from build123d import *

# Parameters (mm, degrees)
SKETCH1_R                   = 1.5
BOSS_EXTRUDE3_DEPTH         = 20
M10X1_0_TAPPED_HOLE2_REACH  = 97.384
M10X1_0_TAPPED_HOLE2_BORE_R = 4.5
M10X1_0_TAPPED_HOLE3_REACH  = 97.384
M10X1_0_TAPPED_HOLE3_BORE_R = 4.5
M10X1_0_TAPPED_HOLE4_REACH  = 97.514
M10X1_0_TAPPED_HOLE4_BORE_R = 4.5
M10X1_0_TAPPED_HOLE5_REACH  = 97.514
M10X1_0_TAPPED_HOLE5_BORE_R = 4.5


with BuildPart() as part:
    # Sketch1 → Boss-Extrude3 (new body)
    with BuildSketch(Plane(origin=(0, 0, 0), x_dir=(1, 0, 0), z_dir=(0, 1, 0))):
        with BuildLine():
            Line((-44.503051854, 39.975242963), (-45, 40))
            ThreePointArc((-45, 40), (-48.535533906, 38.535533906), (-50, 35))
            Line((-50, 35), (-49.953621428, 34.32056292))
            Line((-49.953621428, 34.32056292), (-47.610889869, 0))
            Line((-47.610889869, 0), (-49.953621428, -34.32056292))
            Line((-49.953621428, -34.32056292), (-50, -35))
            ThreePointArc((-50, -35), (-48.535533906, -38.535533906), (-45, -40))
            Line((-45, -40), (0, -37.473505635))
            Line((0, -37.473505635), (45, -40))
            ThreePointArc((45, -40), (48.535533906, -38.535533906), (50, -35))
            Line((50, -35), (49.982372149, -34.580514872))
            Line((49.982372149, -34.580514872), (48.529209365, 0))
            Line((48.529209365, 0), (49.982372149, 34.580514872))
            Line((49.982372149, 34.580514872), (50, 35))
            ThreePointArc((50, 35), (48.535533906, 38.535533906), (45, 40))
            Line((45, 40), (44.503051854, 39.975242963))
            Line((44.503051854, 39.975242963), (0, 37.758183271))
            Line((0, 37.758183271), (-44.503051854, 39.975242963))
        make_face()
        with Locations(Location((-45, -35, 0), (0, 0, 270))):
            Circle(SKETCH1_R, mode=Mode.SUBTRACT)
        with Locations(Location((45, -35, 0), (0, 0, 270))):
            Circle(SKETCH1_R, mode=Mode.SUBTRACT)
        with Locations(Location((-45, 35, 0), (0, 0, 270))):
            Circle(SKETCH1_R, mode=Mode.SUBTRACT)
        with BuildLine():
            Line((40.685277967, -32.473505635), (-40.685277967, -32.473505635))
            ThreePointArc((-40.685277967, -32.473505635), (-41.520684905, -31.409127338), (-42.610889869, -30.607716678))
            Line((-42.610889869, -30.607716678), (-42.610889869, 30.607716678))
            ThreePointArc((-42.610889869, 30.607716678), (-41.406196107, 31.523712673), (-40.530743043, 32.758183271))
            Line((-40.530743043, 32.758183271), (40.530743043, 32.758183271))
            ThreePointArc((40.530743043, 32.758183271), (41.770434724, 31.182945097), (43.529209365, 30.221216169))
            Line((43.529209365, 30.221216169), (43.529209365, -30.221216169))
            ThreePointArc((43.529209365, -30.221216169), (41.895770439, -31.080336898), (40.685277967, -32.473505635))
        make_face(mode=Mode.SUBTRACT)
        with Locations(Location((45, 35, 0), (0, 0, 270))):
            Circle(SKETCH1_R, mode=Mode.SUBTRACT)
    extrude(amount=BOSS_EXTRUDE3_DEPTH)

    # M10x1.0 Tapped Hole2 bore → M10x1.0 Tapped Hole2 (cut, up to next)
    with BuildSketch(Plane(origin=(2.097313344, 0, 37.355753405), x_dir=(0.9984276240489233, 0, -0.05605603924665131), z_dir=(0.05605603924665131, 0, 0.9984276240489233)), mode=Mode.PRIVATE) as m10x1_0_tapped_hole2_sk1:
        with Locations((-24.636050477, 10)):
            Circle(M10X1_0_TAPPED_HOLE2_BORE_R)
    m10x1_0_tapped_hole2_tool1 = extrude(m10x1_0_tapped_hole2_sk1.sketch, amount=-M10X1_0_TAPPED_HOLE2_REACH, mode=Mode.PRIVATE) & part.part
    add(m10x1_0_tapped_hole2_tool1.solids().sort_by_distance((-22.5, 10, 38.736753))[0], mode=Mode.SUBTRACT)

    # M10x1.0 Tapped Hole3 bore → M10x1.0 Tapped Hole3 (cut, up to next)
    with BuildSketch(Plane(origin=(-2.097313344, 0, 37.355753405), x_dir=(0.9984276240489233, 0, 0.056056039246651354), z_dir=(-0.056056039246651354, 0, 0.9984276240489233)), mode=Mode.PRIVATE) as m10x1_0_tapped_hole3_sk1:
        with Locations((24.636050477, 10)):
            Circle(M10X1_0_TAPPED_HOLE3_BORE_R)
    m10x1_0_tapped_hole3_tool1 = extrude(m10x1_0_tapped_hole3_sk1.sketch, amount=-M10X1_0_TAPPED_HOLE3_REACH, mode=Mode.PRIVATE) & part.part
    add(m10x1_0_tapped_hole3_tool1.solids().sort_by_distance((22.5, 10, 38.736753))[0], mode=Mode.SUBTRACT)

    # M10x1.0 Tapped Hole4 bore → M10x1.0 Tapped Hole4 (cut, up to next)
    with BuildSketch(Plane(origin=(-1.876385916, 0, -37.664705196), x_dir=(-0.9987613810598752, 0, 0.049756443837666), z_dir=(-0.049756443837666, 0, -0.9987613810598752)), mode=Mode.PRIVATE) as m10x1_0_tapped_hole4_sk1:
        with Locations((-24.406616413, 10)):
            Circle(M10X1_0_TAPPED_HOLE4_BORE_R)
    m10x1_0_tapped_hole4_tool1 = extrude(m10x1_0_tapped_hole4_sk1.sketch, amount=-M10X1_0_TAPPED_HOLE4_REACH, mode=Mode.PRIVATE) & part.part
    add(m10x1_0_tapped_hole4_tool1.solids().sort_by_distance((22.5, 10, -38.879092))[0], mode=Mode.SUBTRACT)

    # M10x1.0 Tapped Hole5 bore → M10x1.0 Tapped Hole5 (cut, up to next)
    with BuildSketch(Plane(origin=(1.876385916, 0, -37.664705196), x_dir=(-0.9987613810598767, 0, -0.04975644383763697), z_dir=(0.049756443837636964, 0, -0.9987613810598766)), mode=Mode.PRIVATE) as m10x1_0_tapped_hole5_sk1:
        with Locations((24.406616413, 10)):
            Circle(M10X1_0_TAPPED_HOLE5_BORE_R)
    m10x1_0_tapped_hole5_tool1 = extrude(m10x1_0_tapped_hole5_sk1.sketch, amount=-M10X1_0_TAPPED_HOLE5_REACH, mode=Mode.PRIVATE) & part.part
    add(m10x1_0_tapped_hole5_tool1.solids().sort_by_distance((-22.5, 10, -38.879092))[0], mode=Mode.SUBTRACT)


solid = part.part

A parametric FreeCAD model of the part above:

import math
import FreeCAD as App
import Part
import Sketcher
from FreeCAD import Vector
Q = App.Units.Quantity

doc = App.newDocument("Part")
params = doc.addObject("Spreadsheet::Sheet", "Params")
for row, (alias, value) in enumerate([
    ("sketch1_diameter", "3 mm"),
    ("sketch1_diameter2", "3 mm"),
    ("sketch1_diameter3", "3 mm"),
    ("sketch1_diameter4", "3 mm"),
    ("sketch1_radius", "5 mm"),
    ("pad1_length", "20 mm"),
    ("sketch2_diameter", "9 mm"),
    ("sketch3_diameter", "9 mm"),
    ("sketch4_diameter", "9 mm"),
    ("sketch5_diameter", "9 mm"),
], start=1):
    params.set(f"A{row}", alias)
    params.set(f"B{row}", "=" + value)
    params.setAlias(f"B{row}", alias)

body = doc.addObject("PartDesign::Body", "Body")

sketch1 = body.newObject("Sketcher::SketchObject", "Sketch")
sketch1.AttachmentSupport = (doc.getObject("XZ_Plane"), [""])
sketch1.MapMode = "FlatFace"
sketch1.addGeometry(Part.LineSegment(Vector(-44.503052, -39.975243, 0), Vector(-45, -40, 0)), False)
sketch1.addGeometry(Part.ArcOfCircle(Part.Circle(Vector(-45, -35, 0), Vector(0, 0, 1), 5), math.radians(180), math.radians(270)), False)
sketch1.addGeometry(Part.LineSegment(Vector(-50, -35, 0), Vector(-49.953621, -34.320563, 0)), False)
sketch1.addGeometry(Part.LineSegment(Vector(-49.953621, -34.320563, 0), Vector(-47.61089, 0, 0)), False)
sketch1.addGeometry(Part.LineSegment(Vector(-47.61089, 0, 0), Vector(-49.953621, 34.320563, 0)), False)
sketch1.addGeometry(Part.LineSegment(Vector(-49.953621, 34.320563, 0), Vector(-50, 35, 0)), False)
sketch1.addGeometry(Part.ArcOfCircle(Part.Circle(Vector(-45, 35, 0), Vector(0, 0, 1), 5), math.radians(90), math.radians(180)), False)
sketch1.addGeometry(Part.LineSegment(Vector(-45, 40, 0), Vector(0, 37.473506, 0)), False)
sketch1.addGeometry(Part.LineSegment(Vector(0, 37.473506, 0), Vector(45, 40, 0)), False)
sketch1.addGeometry(Part.ArcOfCircle(Part.Circle(Vector(45, 35, 0), Vector(0, 0, 1), 5), math.radians(0), math.radians(90)), False)
sketch1.addGeometry(Part.LineSegment(Vector(50, 35, 0), Vector(49.982372, 34.580515, 0)), False)
sketch1.addGeometry(Part.LineSegment(Vector(49.982372, 34.580515, 0), Vector(48.529209, 0, 0)), False)
sketch1.addGeometry(Part.LineSegment(Vector(48.529209, 0, 0), Vector(49.982372, -34.580515, 0)), False)
sketch1.addGeometry(Part.LineSegment(Vector(49.982372, -34.580515, 0), Vector(50, -35, 0)), False)
sketch1.addGeometry(Part.ArcOfCircle(Part.Circle(Vector(45, -35, 0), Vector(0, 0, 1), 5), math.radians(-90), math.radians(0)), False)
sketch1.addGeometry(Part.LineSegment(Vector(45, -40, 0), Vector(44.503052, -39.975243, 0)), False)
sketch1.addGeometry(Part.LineSegment(Vector(44.503052, -39.975243, 0), Vector(0, -37.758183, 0)), False)
sketch1.addGeometry(Part.LineSegment(Vector(0, -37.758183, 0), Vector(-44.503052, -39.975243, 0)), False)
sketch1.addGeometry(Part.Circle(Vector(-45, 35, 0), Vector(0, 0, 1), 1.5), False)
sketch1.addGeometry(Part.Circle(Vector(45, 35, 0), Vector(0, 0, 1), 1.5), False)
sketch1.addGeometry(Part.Circle(Vector(-45, -35, 0), Vector(0, 0, 1), 1.5), False)
sketch1.addGeometry(Part.ArcOfCircle(Part.Circle(Vector(45, 35, 0), Vector(0, 0, 1), 5), math.radians(-149.648806), math.radians(-107.107062)), False)
sketch1.addGeometry(Part.LineSegment(Vector(40.685278, 32.473506, 0), Vector(-40.685278, 32.473506, 0)), False)
sketch1.addGeometry(Part.ArcOfCircle(Part.Circle(Vector(-45, 35, 0), Vector(0, 0, 1), 5), math.radians(-61.456749), math.radians(-30.351194)), False)
sketch1.addGeometry(Part.LineSegment(Vector(-42.61089, 30.607717, 0), Vector(-42.61089, -30.607717, 0)), False)
sketch1.addGeometry(Part.ArcOfCircle(Part.Circle(Vector(-45, -35, 0), Vector(0, 0, 1), 5), math.radians(26.638726), math.radians(61.456749)), False)
sketch1.addGeometry(Part.LineSegment(Vector(-40.530743, -32.758183, 0), Vector(40.530743, -32.758183, 0)), False)
sketch1.addGeometry(Part.ArcOfCircle(Part.Circle(Vector(45, -35, 0), Vector(0, 0, 1), 5), math.radians(107.107062), math.radians(153.361274)), False)
sketch1.addGeometry(Part.LineSegment(Vector(43.529209, -30.221216, 0), Vector(43.529209, 30.221216, 0)), False)
sketch1.addGeometry(Part.Circle(Vector(45, -35, 0), Vector(0, 0, 1), 1.5), False)
sketch1.addConstraint(Sketcher.Constraint("Coincident", 0, 2, 1, 2))
sketch1.addConstraint(Sketcher.Constraint("Coincident", 1, 1, 2, 1))
sketch1.addConstraint(Sketcher.Constraint("Coincident", 2, 2, 3, 1))
sketch1.addConstraint(Sketcher.Constraint("Coincident", 3, 2, 4, 1))
sketch1.addConstraint(Sketcher.Constraint("Coincident", 4, 2, 5, 1))
sketch1.addConstraint(Sketcher.Constraint("Coincident", 5, 2, 6, 2))
sketch1.addConstraint(Sketcher.Constraint("Coincident", 6, 1, 7, 1))
sketch1.addConstraint(Sketcher.Constraint("Coincident", 7, 2, 8, 1))
sketch1.addConstraint(Sketcher.Constraint("Coincident", 8, 2, 9, 2))
sketch1.addConstraint(Sketcher.Constraint("Coincident", 9, 1, 10, 1))
sketch1.addConstraint(Sketcher.Constraint("Coincident", 10, 2, 11, 1))
sketch1.addConstraint(Sketcher.Constraint("Coincident", 11, 2, 12, 1))
sketch1.addConstraint(Sketcher.Constraint("Coincident", 12, 2, 13, 1))
sketch1.addConstraint(Sketcher.Constraint("Coincident", 13, 2, 14, 2))
sketch1.addConstraint(Sketcher.Constraint("Coincident", 14, 1, 15, 1))
sketch1.addConstraint(Sketcher.Constraint("Coincident", 15, 2, 16, 1))
sketch1.addConstraint(Sketcher.Constraint("Coincident", 16, 2, 17, 1))
sketch1.addConstraint(Sketcher.Constraint("Coincident", 17, 2, 0, 1))
sketch1.addConstraint(Sketcher.Constraint("Coincident", 21, 1, 22, 1))
sketch1.addConstraint(Sketcher.Constraint("Coincident", 22, 2, 23, 2))
sketch1.addConstraint(Sketcher.Constraint("Coincident", 23, 1, 24, 1))
sketch1.addConstraint(Sketcher.Constraint("Coincident", 24, 2, 25, 2))
sketch1.addConstraint(Sketcher.Constraint("Coincident", 25, 1, 26, 1))
sketch1.addConstraint(Sketcher.Constraint("Coincident", 26, 2, 27, 2))
sketch1.addConstraint(Sketcher.Constraint("Coincident", 27, 1, 28, 1))
sketch1.addConstraint(Sketcher.Constraint("Coincident", 28, 2, 21, 2))
sketch1.addConstraint(Sketcher.Constraint("Horizontal", 22))
sketch1.addConstraint(Sketcher.Constraint("Vertical", 24))
sketch1.addConstraint(Sketcher.Constraint("Horizontal", 26))
sketch1.addConstraint(Sketcher.Constraint("Vertical", 28))
sketch1.addConstraint(Sketcher.Constraint("Coincident", 18, 3, 6, 3))
sketch1.addConstraint(Sketcher.Constraint("Coincident", 19, 3, 9, 3))
sketch1.addConstraint(Sketcher.Constraint("Coincident", 20, 3, 1, 3))
sketch1.addConstraint(Sketcher.Constraint("Coincident", 21, 3, 9, 3))
sketch1.addConstraint(Sketcher.Constraint("Coincident", 23, 3, 6, 3))
sketch1.addConstraint(Sketcher.Constraint("Coincident", 25, 3, 1, 3))
sketch1.addConstraint(Sketcher.Constraint("Coincident", 27, 3, 14, 3))
sketch1.addConstraint(Sketcher.Constraint("Coincident", 29, 3, 14, 3))
sketch1.addConstraint(Sketcher.Constraint("PointOnObject", 3, 2, -1))
sketch1.addConstraint(Sketcher.Constraint("PointOnObject", 7, 2, -2))
sketch1.addConstraint(Sketcher.Constraint("PointOnObject", 11, 2, -1))
sketch1.addConstraint(Sketcher.Constraint("PointOnObject", 16, 2, -2))
sketch1.addConstraint(Sketcher.Constraint("Diameter", 18, Q("3 mm")))
sketch1.addConstraint(Sketcher.Constraint("Diameter", 19, Q("3 mm")))
sketch1.addConstraint(Sketcher.Constraint("Diameter", 20, Q("3 mm")))
sketch1.addConstraint(Sketcher.Constraint("Diameter", 29, Q("3 mm")))
sketch1.addConstraint(Sketcher.Constraint("Radius", 1, Q("5 mm")))
sketch1.addConstraint(Sketcher.Constraint("Radius", 6, Q("5 mm")))
sketch1.addConstraint(Sketcher.Constraint("Radius", 9, Q("5 mm")))
sketch1.addConstraint(Sketcher.Constraint("Radius", 14, Q("5 mm")))
sketch1.addConstraint(Sketcher.Constraint("Radius", 21, Q("5 mm")))
sketch1.addConstraint(Sketcher.Constraint("Radius", 23, Q("5 mm")))
sketch1.addConstraint(Sketcher.Constraint("Radius", 25, Q("5 mm")))
sketch1.addConstraint(Sketcher.Constraint("Radius", 27, Q("5 mm")))
sketch1.addConstraint(Sketcher.Constraint("DistanceX", 1, 3, -1, 1, Q("45 mm")))
sketch1.addConstraint(Sketcher.Constraint("DistanceY", 1, 3, -1, 1, Q("35 mm")))
sketch1.addConstraint(Sketcher.Constraint("DistanceX", 6, 3, -1, 1, Q("45 mm")))
sketch1.addConstraint(Sketcher.Constraint("DistanceY", -1, 1, 6, 3, Q("35 mm")))
sketch1.addConstraint(Sketcher.Constraint("DistanceX", -1, 1, 9, 3, Q("45 mm")))
sketch1.addConstraint(Sketcher.Constraint("DistanceY", -1, 1, 9, 3, Q("35 mm")))
sketch1.addConstraint(Sketcher.Constraint("DistanceX", -1, 1, 14, 3, Q("45 mm")))
sketch1.addConstraint(Sketcher.Constraint("DistanceY", 14, 3, -1, 1, Q("35 mm")))
sketch1.addConstraint(Sketcher.Constraint("DistanceX", 0, 2, -1, 1, Q("45 mm")))
sketch1.addConstraint(Sketcher.Constraint("DistanceY", 1, 1, -1, 1, Q("35 mm")))
sketch1.addConstraint(Sketcher.Constraint("DistanceY", -1, 1, 5, 2, Q("35 mm")))
sketch1.addConstraint(Sketcher.Constraint("DistanceX", 6, 1, -1, 1, Q("45 mm")))
sketch1.addConstraint(Sketcher.Constraint("DistanceX", -1, 1, 8, 2, Q("45 mm")))
sketch1.addConstraint(Sketcher.Constraint("DistanceY", -1, 1, 9, 1, Q("35 mm")))
sketch1.addConstraint(Sketcher.Constraint("DistanceY", 13, 2, -1, 1, Q("35 mm")))
sketch1.addConstraint(Sketcher.Constraint("DistanceX", -1, 1, 14, 1, Q("45 mm")))
sketch1.addConstraint(Sketcher.Constraint("DistanceY", 12, 2, 27, 1, Q("4.359299 mm")))
sketch1.addConstraint(Sketcher.Constraint("DistanceY", 28, 2, 10, 2, Q("4.359299 mm")))
sketch1.addConstraint(Sketcher.Constraint("Distance", 2, Q("0.681018 mm")))
sketch1.addConstraint(Sketcher.Constraint("Distance", 5, Q("0.681018 mm")))
sketch1.addConstraint(Sketcher.Constraint("Distance", 7, Q("45.070868 mm")))
sketch1.addConstraint(Sketcher.Constraint("DistanceX", 22, 2, 22, 1, Q("81.370556 mm")))
sketch1.addConstraint(Sketcher.Constraint("DistanceX", 26, 1, 26, 2, Q("81.061486 mm")))
sketch1.addConstraint(Sketcher.Constraint("DistanceY", 24, 2, 24, 1, Q("61.215433 mm")))
sketch1.addConstraint(Sketcher.Constraint("DistanceY", 28, 1, 28, 2, Q("60.442432 mm")))
sketch1.addConstraint(Sketcher.Constraint("DistanceX", 2, 2, -1, 1, Q("49.953621 mm")))
sketch1.addConstraint(Sketcher.Constraint("DistanceX", 3, 2, -1, 1, Q("47.61089 mm")))
sketch1.addConstraint(Sketcher.Constraint("DistanceX", 4, 2, -1, 1, Q("49.953621 mm")))
sketch1.addConstraint(Sketcher.Constraint("DistanceX", -1, 1, 11, 2, Q("48.529209 mm")))
sketch1.addConstraint(Sketcher.Constraint("DistanceX", -1, 1, 15, 2, Q("44.503052 mm")))
sketch1.addConstraint(Sketcher.Constraint("DistanceX", 17, 2, -1, 1, Q("44.503052 mm")))
sketch1.addConstraint(Sketcher.Constraint("DistanceY", 15, 2, 16, 2, Q("2.21706 mm")))
sketch1.addConstraint(Sketcher.Constraint("DistanceY", 17, 2, 25, 1, Q("7.21706 mm")))
sketch1.addConstraint(Sketcher.Constraint("DistanceY", 15, 2, 26, 2, Q("7.21706 mm")))
sketch1.addConstraint(Sketcher.Constraint("Distance", 10, Q("0.419855 mm")))
sketch1.addConstraint(Sketcher.Constraint("Distance", 12, Q("34.611034 mm")))
sketch1.setExpression("Constraints[42]", "Params.sketch1_diameter")
sketch1.setExpression("Constraints[43]", "Params.sketch1_diameter2")
sketch1.setExpression("Constraints[44]", "Params.sketch1_diameter3")
sketch1.setExpression("Constraints[45]", "Params.sketch1_diameter4")
sketch1.setExpression("Constraints[46]", "Params.sketch1_radius")
pad1 = body.newObject("PartDesign::Pad", "Pad")
pad1.Profile = sketch1
pad1.setExpression("Length", "Params.pad1_length")
pad1.Reversed = True

sketch2 = body.newObject("Sketcher::SketchObject", "Sketch001")
sketch2.Placement = App.Placement(Vector(2.097313, 0, 37.355753), App.Rotation(Vector(0.998427624, 0, -0.056056039), Vector(0, 1, 0), Vector(0.056056039, 0, 0.998427624), "ZXY"))
sketch2.addGeometry(Part.Circle(Vector(-24.63605, 10, 0), Vector(0, 0, 1), 4.5), False)
sketch2.addConstraint(Sketcher.Constraint("Diameter", 0, Q("9 mm")))
sketch2.addConstraint(Sketcher.Constraint("DistanceY", -1, 1, 0, 3, Q("10 mm")))
sketch2.addConstraint(Sketcher.Constraint("DistanceX", 0, 3, -1, 1, Q("24.63605 mm")))
sketch2.setExpression("Constraints[0]", "Params.sketch2_diameter")
pocket1 = body.newObject("PartDesign::Pocket", "Pocket")
pocket1.Profile = sketch2
pocket1.Type = "UpToFirst"

sketch3 = body.newObject("Sketcher::SketchObject", "Sketch002")
sketch3.Placement = App.Placement(Vector(-2.097313, 0, 37.355753), App.Rotation(Vector(0.998427624, 0, 0.056056039), Vector(0, 1, 0), Vector(-0.056056039, 0, 0.998427624), "ZXY"))
sketch3.addGeometry(Part.Circle(Vector(24.63605, 10, 0), Vector(0, 0, 1), 4.5), False)
sketch3.addConstraint(Sketcher.Constraint("Diameter", 0, Q("9 mm")))
sketch3.addConstraint(Sketcher.Constraint("DistanceY", -1, 1, 0, 3, Q("10 mm")))
sketch3.addConstraint(Sketcher.Constraint("DistanceX", -1, 1, 0, 3, Q("24.63605 mm")))
sketch3.setExpression("Constraints[0]", "Params.sketch3_diameter")
pocket2 = body.newObject("PartDesign::Pocket", "Pocket001")
pocket2.Profile = sketch3
pocket2.Type = "UpToFirst"

sketch4 = body.newObject("Sketcher::SketchObject", "Sketch003")
sketch4.Placement = App.Placement(Vector(-1.876386, 0, -37.664705), App.Rotation(Vector(-0.998761381, 0, 0.049756444), Vector(0, 1, 0), Vector(-0.049756444, 0, -0.998761381), "ZXY"))
sketch4.addGeometry(Part.Circle(Vector(-24.406616, 10, 0), Vector(0, 0, 1), 4.5), False)
sketch4.addConstraint(Sketcher.Constraint("Diameter", 0, Q("9 mm")))
sketch4.addConstraint(Sketcher.Constraint("DistanceY", -1, 1, 0, 3, Q("10 mm")))
sketch4.addConstraint(Sketcher.Constraint("DistanceX", 0, 3, -1, 1, Q("24.406616 mm")))
sketch4.setExpression("Constraints[0]", "Params.sketch4_diameter")
pocket3 = body.newObject("PartDesign::Pocket", "Pocket002")
pocket3.Profile = sketch4
pocket3.Type = "UpToFirst"

sketch5 = body.newObject("Sketcher::SketchObject", "Sketch004")
sketch5.Placement = App.Placement(Vector(1.876386, 0, -37.664705), App.Rotation(Vector(-0.998761381, 0, -0.049756444), Vector(0, 1, 0), Vector(0.049756444, 0, -0.998761381), "ZXY"))
sketch5.addGeometry(Part.Circle(Vector(24.406616, 10, 0), Vector(0, 0, 1), 4.5), False)
sketch5.addConstraint(Sketcher.Constraint("Diameter", 0, Q("9 mm")))
sketch5.addConstraint(Sketcher.Constraint("DistanceY", -1, 1, 0, 3, Q("10 mm")))
sketch5.addConstraint(Sketcher.Constraint("DistanceX", -1, 1, 0, 3, Q("24.406616 mm")))
sketch5.setExpression("Constraints[0]", "Params.sketch5_diameter")
pocket4 = body.newObject("PartDesign::Pocket", "Pocket003")
pocket4.Profile = sketch5
pocket4.Type = "UpToFirst"

doc.recompute()
